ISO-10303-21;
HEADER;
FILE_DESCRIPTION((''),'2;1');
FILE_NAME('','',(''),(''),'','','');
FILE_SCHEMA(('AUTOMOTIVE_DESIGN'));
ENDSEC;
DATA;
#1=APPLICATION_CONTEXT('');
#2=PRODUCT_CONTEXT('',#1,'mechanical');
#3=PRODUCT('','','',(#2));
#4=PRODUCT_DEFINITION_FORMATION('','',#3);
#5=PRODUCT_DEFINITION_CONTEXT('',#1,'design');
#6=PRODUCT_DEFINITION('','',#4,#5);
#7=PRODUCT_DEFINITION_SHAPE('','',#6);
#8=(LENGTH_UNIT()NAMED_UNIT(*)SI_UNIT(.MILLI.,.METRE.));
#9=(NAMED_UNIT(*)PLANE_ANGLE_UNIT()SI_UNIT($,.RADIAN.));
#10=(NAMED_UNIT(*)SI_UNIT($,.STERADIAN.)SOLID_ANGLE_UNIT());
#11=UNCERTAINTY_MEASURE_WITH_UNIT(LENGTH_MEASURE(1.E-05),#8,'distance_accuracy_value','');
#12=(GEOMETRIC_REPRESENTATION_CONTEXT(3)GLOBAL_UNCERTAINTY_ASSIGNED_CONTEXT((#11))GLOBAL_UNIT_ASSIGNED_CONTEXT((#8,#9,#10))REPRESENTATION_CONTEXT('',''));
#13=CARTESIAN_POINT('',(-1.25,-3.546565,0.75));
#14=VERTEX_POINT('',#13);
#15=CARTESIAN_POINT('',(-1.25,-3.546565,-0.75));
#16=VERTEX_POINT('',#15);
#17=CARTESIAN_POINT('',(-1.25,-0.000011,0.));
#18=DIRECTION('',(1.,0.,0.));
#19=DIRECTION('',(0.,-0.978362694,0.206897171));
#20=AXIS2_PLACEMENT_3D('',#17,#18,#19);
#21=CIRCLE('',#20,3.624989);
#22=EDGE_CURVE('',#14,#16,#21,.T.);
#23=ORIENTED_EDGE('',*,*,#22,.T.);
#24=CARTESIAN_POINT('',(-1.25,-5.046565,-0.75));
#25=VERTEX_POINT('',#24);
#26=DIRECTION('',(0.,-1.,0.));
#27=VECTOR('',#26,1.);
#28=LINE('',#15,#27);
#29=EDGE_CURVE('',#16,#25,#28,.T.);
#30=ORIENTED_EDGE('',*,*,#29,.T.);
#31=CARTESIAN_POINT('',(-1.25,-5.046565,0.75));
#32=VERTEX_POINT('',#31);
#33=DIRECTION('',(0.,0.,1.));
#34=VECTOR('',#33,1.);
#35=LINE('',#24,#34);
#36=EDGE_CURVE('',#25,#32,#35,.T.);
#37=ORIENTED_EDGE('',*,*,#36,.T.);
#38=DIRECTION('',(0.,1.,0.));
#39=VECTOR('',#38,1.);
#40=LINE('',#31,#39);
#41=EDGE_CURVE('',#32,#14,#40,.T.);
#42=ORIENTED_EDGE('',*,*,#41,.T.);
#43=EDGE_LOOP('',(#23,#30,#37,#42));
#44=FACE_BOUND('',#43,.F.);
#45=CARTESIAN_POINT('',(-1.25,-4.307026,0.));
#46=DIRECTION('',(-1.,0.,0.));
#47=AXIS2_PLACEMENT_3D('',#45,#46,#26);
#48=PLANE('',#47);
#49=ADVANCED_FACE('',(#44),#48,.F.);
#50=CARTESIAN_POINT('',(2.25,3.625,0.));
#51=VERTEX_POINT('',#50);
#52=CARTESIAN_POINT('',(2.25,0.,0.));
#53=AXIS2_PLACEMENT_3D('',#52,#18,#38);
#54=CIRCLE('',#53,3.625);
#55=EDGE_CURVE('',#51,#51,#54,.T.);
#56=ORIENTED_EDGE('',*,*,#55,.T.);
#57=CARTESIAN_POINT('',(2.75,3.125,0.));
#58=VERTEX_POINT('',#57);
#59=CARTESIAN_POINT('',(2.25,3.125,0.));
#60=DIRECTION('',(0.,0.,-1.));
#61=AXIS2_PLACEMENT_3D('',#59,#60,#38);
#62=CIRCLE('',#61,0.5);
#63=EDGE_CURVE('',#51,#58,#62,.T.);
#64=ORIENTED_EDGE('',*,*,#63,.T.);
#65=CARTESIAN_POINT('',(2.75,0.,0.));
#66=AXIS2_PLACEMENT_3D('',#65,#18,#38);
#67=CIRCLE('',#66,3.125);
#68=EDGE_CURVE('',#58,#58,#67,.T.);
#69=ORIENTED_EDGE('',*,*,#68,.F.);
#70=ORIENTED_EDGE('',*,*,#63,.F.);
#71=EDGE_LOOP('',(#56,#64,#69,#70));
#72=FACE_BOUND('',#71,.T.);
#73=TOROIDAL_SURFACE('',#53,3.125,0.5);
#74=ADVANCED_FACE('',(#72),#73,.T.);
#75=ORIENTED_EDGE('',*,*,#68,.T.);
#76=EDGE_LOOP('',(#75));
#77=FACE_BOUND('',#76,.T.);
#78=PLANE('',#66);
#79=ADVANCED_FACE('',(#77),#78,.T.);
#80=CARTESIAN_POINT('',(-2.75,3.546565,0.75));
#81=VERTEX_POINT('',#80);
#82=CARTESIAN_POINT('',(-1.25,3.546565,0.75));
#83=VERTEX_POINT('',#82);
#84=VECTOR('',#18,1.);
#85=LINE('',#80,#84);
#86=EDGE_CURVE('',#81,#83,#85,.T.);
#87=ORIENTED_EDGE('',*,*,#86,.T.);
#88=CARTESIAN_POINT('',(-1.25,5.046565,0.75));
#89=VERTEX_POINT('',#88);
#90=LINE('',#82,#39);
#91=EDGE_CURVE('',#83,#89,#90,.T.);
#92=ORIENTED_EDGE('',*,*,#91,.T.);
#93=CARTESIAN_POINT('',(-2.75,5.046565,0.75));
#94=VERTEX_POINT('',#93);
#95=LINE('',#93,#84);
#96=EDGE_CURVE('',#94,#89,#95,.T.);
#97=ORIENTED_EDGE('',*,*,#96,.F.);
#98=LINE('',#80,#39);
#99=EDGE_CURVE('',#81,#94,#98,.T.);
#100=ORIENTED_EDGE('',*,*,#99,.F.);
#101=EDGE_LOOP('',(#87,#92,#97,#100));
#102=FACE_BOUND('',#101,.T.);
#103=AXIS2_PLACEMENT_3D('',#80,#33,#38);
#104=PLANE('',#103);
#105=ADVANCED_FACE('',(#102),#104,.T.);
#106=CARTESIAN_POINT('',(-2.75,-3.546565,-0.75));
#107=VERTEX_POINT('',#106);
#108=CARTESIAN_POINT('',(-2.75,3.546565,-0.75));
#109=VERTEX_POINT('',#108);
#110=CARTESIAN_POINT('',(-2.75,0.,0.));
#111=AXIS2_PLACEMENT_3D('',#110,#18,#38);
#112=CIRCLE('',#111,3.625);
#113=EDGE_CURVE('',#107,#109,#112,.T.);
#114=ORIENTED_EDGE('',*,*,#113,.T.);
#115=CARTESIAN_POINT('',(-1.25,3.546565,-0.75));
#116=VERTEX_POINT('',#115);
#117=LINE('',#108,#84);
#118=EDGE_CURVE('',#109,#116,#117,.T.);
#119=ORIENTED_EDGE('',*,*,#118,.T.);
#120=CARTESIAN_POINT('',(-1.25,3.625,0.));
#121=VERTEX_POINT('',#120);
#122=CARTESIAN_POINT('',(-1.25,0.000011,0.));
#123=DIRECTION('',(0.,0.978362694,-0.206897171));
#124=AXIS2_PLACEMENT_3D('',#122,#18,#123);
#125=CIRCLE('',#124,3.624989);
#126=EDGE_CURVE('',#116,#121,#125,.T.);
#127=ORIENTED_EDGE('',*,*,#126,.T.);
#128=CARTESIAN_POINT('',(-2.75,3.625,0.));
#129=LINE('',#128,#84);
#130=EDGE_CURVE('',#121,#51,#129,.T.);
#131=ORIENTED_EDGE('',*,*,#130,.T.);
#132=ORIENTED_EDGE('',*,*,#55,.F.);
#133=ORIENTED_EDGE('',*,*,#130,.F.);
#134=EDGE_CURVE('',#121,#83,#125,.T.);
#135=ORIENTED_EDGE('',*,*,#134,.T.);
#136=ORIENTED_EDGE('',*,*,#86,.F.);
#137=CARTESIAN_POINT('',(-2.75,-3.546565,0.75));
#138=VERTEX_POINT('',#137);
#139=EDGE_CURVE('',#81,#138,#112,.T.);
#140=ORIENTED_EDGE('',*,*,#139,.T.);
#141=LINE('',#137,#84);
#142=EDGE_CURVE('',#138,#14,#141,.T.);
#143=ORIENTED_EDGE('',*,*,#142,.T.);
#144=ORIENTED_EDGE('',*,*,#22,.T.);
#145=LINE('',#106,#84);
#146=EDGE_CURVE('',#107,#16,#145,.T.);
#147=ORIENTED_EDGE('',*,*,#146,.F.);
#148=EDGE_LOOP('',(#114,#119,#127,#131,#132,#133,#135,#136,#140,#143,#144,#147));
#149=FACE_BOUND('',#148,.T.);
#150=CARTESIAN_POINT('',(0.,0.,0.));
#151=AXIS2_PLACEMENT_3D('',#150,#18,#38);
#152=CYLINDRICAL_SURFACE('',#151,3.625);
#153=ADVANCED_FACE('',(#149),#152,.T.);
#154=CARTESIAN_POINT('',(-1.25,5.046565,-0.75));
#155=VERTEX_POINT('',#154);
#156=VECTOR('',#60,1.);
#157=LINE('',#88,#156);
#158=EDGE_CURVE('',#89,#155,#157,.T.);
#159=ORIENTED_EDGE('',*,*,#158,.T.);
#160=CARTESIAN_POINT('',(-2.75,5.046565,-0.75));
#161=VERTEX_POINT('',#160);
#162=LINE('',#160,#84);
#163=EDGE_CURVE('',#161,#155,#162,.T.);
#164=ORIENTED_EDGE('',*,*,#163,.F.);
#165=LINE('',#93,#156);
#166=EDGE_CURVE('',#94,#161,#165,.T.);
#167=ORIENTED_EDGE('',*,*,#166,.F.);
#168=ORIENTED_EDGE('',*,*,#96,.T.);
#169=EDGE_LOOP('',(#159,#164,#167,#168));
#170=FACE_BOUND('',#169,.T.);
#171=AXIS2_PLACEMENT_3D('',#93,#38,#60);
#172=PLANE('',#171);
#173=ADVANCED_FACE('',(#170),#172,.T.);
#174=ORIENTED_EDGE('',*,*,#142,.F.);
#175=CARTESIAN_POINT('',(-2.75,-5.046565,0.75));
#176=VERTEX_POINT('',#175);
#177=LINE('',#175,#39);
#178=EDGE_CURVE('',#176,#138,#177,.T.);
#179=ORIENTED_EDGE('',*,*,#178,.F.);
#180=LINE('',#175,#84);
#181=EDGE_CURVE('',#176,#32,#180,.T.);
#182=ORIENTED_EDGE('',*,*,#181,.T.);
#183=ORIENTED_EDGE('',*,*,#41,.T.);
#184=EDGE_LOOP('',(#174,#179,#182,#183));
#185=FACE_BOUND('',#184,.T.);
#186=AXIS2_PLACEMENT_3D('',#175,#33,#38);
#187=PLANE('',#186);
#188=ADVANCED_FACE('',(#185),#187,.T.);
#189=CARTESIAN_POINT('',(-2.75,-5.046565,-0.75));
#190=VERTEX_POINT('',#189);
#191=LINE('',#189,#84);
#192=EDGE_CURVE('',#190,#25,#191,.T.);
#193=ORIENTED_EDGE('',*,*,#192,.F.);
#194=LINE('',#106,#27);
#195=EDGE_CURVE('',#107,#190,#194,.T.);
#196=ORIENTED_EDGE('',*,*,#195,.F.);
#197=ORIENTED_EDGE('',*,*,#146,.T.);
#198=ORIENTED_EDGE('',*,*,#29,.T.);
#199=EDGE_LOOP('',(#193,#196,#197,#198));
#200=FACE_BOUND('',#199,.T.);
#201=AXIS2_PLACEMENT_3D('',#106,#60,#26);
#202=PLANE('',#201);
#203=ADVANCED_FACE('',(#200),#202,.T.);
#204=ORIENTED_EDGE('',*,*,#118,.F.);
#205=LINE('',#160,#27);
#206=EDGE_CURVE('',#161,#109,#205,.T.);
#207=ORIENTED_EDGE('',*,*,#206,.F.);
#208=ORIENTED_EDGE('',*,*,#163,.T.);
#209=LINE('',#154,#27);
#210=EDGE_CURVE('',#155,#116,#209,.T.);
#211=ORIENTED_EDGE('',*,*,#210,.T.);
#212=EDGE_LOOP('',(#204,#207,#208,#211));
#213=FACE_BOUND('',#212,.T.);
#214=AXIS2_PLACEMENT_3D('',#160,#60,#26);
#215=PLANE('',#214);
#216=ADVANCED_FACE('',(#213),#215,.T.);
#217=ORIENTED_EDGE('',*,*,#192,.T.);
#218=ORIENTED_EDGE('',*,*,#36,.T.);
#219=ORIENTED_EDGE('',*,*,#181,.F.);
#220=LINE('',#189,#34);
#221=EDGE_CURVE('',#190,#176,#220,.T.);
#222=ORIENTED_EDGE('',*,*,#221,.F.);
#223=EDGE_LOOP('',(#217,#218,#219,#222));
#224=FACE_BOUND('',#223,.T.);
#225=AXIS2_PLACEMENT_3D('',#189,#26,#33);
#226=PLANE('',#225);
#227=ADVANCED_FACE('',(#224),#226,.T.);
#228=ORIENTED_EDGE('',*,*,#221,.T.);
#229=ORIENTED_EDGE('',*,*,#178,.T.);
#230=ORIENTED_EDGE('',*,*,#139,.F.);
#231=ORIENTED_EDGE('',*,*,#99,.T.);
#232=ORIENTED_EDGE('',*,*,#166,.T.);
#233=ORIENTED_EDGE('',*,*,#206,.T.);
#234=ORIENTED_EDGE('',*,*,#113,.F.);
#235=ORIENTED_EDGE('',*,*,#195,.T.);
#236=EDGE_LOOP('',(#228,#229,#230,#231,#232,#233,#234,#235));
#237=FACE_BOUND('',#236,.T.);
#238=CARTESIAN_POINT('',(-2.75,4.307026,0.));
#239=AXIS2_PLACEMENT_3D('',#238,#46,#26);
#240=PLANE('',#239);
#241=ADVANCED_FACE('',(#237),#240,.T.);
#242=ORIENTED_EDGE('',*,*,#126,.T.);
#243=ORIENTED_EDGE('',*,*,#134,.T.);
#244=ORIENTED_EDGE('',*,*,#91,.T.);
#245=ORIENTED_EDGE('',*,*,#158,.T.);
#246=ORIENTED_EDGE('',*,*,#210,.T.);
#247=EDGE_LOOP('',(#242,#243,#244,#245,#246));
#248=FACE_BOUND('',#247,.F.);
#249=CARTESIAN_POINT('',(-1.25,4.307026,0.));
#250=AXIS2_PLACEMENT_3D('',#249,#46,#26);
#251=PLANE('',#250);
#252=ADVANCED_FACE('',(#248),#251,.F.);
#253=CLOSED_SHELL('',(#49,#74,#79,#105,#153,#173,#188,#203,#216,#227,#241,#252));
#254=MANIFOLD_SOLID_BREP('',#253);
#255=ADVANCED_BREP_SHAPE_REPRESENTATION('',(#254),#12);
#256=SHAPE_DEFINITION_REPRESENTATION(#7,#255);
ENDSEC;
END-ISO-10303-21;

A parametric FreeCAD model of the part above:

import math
import FreeCAD as App
import Part
import Sketcher
from FreeCAD import Vector


def edges_at(feature, points):
    """Names of the edges that pass closest to the given points."""
    edges = feature.Shape.Edges
    near = lambda p: min(range(len(edges)), key=lambda i: edges[i].distToShape(Part.Vertex(*p))[0])
    return sorted({f"Edge{near(p) + 1}" for p in points})

doc = App.newDocument("Part")
body = doc.addObject("PartDesign::Body", "Body")

sketch1 = doc.addObject("Sketcher::SketchObject", "Sketch")
body.addObject(sketch1)
sketch1.AttachmentSupport = (doc.YZ_Plane, [""])
sketch1.MapMode = "FlatFace"
sketch1.addGeometry(Part.Circle(Vector(0, 0, 0), Vector(0, 0, 1), 3.6), False)
sketch1.addConstraint([
    Sketcher.Constraint("Coincident", 0, 3, -1, 1),
    Sketcher.Constraint("Diameter", 0, 7.25),
])
pad1 = doc.addObject("PartDesign::Pad", "Pad")
body.addObject(pad1)
pad1.Profile = sketch1
pad1.Length = 5.5
pad1.Midplane = True
doc.recompute()

fillet = doc.addObject("PartDesign::Fillet", "Fillet")
body.addObject(fillet)
fillet.Base = (pad1, edges_at(pad1, [(2.75, -3.625, 0)]))
fillet.Radius = 0.5

sketch2 = doc.addObject("Sketcher::SketchObject", "Sketch001")
body.addObject(sketch2)
sketch2.AttachmentSupport = (doc.YZ_Plane, [""])
sketch2.MapMode = "FlatFace"
sketch2.AttachmentOffset = App.Placement(Vector(0, 0, -2.75), App.Rotation())
sketch2.addGeometry([
    Part.LineSegment(Vector(-3.546565, -0.75, 0), Vector(-5.046565, -0.75, 0)),
    Part.LineSegment(Vector(-5.046565, -0.75, 0), Vector(-5.046565, 0.75, 0)),
    Part.LineSegment(Vector(-5.046565, 0.75, 0), Vector(-3.546565, 0.75, 0)),
    Part.ArcOfCircle(Part.Circle(Vector(-0.000011, 0, 0), Vector(0, 0, 1), 3.624989), math.radians(168.05942), math.radians(191.94058)),
    Part.LineSegment(Vector(3.546565, 0.75, 0), Vector(5.046565, 0.75, 0)),
    Part.LineSegment(Vector(5.046565, 0.75, 0), Vector(5.046565, -0.75, 0)),
    Part.LineSegment(Vector(5.046565, -0.75, 0), Vector(3.546565, -0.75, 0)),
    Part.ArcOfCircle(Part.Circle(Vector(0.000011, 0, 0), Vector(0, 0, 1), 3.624989), math.radians(-11.94058), math.radians(11.94058)),
], False)
sketch2.addConstraint([
    Sketcher.Constraint("Coincident", 0, 2, 1, 1),
    Sketcher.Constraint("Coincident", 1, 2, 2, 1),
    Sketcher.Constraint("Coincident", 2, 2, 3, 1),
    Sketcher.Constraint("Coincident", 3, 2, 0, 1),
    Sketcher.Constraint("Coincident", 4, 2, 5, 1),
    Sketcher.Constraint("Coincident", 5, 2, 6, 1),
    Sketcher.Constraint("Coincident", 6, 2, 7, 1),
    Sketcher.Constraint("Coincident", 7, 2, 4, 1),
    Sketcher.Constraint("Horizontal", 0),
    Sketcher.Constraint("Vertical", 1),
    Sketcher.Constraint("Horizontal", 2),
    Sketcher.Constraint("Horizontal", 4),
    Sketcher.Constraint("Vertical", 5),
    Sketcher.Constraint("Horizontal", 6),
    Sketcher.Constraint("Equal", 3, 7),
    Sketcher.Constraint("Symmetric", 3, 3, 7, 3, -1, 1),
    Sketcher.Constraint("Symmetric", 0, 2, 4, 2, -1, 1),
    Sketcher.Constraint("Symmetric", 3, 2, 6, 2, -2),
    Sketcher.Constraint("Horizontal", 2, 2, 4, 2),
    Sketcher.Constraint("Equal", 6, 1),
    Sketcher.Constraint("DistanceX", 0, 2, 0, 1, 1.5),
    Sketcher.Constraint("Radius", 3, 3.624989),
    Sketcher.Constraint("DistanceX", 2, 2, 4, 2, 8.59313),
])
pad2 = doc.addObject("PartDesign::Pad", "Pad001")
body.addObject(pad2)
pad2.Profile = sketch2
pad2.Length = 1.5

doc.recompute()
